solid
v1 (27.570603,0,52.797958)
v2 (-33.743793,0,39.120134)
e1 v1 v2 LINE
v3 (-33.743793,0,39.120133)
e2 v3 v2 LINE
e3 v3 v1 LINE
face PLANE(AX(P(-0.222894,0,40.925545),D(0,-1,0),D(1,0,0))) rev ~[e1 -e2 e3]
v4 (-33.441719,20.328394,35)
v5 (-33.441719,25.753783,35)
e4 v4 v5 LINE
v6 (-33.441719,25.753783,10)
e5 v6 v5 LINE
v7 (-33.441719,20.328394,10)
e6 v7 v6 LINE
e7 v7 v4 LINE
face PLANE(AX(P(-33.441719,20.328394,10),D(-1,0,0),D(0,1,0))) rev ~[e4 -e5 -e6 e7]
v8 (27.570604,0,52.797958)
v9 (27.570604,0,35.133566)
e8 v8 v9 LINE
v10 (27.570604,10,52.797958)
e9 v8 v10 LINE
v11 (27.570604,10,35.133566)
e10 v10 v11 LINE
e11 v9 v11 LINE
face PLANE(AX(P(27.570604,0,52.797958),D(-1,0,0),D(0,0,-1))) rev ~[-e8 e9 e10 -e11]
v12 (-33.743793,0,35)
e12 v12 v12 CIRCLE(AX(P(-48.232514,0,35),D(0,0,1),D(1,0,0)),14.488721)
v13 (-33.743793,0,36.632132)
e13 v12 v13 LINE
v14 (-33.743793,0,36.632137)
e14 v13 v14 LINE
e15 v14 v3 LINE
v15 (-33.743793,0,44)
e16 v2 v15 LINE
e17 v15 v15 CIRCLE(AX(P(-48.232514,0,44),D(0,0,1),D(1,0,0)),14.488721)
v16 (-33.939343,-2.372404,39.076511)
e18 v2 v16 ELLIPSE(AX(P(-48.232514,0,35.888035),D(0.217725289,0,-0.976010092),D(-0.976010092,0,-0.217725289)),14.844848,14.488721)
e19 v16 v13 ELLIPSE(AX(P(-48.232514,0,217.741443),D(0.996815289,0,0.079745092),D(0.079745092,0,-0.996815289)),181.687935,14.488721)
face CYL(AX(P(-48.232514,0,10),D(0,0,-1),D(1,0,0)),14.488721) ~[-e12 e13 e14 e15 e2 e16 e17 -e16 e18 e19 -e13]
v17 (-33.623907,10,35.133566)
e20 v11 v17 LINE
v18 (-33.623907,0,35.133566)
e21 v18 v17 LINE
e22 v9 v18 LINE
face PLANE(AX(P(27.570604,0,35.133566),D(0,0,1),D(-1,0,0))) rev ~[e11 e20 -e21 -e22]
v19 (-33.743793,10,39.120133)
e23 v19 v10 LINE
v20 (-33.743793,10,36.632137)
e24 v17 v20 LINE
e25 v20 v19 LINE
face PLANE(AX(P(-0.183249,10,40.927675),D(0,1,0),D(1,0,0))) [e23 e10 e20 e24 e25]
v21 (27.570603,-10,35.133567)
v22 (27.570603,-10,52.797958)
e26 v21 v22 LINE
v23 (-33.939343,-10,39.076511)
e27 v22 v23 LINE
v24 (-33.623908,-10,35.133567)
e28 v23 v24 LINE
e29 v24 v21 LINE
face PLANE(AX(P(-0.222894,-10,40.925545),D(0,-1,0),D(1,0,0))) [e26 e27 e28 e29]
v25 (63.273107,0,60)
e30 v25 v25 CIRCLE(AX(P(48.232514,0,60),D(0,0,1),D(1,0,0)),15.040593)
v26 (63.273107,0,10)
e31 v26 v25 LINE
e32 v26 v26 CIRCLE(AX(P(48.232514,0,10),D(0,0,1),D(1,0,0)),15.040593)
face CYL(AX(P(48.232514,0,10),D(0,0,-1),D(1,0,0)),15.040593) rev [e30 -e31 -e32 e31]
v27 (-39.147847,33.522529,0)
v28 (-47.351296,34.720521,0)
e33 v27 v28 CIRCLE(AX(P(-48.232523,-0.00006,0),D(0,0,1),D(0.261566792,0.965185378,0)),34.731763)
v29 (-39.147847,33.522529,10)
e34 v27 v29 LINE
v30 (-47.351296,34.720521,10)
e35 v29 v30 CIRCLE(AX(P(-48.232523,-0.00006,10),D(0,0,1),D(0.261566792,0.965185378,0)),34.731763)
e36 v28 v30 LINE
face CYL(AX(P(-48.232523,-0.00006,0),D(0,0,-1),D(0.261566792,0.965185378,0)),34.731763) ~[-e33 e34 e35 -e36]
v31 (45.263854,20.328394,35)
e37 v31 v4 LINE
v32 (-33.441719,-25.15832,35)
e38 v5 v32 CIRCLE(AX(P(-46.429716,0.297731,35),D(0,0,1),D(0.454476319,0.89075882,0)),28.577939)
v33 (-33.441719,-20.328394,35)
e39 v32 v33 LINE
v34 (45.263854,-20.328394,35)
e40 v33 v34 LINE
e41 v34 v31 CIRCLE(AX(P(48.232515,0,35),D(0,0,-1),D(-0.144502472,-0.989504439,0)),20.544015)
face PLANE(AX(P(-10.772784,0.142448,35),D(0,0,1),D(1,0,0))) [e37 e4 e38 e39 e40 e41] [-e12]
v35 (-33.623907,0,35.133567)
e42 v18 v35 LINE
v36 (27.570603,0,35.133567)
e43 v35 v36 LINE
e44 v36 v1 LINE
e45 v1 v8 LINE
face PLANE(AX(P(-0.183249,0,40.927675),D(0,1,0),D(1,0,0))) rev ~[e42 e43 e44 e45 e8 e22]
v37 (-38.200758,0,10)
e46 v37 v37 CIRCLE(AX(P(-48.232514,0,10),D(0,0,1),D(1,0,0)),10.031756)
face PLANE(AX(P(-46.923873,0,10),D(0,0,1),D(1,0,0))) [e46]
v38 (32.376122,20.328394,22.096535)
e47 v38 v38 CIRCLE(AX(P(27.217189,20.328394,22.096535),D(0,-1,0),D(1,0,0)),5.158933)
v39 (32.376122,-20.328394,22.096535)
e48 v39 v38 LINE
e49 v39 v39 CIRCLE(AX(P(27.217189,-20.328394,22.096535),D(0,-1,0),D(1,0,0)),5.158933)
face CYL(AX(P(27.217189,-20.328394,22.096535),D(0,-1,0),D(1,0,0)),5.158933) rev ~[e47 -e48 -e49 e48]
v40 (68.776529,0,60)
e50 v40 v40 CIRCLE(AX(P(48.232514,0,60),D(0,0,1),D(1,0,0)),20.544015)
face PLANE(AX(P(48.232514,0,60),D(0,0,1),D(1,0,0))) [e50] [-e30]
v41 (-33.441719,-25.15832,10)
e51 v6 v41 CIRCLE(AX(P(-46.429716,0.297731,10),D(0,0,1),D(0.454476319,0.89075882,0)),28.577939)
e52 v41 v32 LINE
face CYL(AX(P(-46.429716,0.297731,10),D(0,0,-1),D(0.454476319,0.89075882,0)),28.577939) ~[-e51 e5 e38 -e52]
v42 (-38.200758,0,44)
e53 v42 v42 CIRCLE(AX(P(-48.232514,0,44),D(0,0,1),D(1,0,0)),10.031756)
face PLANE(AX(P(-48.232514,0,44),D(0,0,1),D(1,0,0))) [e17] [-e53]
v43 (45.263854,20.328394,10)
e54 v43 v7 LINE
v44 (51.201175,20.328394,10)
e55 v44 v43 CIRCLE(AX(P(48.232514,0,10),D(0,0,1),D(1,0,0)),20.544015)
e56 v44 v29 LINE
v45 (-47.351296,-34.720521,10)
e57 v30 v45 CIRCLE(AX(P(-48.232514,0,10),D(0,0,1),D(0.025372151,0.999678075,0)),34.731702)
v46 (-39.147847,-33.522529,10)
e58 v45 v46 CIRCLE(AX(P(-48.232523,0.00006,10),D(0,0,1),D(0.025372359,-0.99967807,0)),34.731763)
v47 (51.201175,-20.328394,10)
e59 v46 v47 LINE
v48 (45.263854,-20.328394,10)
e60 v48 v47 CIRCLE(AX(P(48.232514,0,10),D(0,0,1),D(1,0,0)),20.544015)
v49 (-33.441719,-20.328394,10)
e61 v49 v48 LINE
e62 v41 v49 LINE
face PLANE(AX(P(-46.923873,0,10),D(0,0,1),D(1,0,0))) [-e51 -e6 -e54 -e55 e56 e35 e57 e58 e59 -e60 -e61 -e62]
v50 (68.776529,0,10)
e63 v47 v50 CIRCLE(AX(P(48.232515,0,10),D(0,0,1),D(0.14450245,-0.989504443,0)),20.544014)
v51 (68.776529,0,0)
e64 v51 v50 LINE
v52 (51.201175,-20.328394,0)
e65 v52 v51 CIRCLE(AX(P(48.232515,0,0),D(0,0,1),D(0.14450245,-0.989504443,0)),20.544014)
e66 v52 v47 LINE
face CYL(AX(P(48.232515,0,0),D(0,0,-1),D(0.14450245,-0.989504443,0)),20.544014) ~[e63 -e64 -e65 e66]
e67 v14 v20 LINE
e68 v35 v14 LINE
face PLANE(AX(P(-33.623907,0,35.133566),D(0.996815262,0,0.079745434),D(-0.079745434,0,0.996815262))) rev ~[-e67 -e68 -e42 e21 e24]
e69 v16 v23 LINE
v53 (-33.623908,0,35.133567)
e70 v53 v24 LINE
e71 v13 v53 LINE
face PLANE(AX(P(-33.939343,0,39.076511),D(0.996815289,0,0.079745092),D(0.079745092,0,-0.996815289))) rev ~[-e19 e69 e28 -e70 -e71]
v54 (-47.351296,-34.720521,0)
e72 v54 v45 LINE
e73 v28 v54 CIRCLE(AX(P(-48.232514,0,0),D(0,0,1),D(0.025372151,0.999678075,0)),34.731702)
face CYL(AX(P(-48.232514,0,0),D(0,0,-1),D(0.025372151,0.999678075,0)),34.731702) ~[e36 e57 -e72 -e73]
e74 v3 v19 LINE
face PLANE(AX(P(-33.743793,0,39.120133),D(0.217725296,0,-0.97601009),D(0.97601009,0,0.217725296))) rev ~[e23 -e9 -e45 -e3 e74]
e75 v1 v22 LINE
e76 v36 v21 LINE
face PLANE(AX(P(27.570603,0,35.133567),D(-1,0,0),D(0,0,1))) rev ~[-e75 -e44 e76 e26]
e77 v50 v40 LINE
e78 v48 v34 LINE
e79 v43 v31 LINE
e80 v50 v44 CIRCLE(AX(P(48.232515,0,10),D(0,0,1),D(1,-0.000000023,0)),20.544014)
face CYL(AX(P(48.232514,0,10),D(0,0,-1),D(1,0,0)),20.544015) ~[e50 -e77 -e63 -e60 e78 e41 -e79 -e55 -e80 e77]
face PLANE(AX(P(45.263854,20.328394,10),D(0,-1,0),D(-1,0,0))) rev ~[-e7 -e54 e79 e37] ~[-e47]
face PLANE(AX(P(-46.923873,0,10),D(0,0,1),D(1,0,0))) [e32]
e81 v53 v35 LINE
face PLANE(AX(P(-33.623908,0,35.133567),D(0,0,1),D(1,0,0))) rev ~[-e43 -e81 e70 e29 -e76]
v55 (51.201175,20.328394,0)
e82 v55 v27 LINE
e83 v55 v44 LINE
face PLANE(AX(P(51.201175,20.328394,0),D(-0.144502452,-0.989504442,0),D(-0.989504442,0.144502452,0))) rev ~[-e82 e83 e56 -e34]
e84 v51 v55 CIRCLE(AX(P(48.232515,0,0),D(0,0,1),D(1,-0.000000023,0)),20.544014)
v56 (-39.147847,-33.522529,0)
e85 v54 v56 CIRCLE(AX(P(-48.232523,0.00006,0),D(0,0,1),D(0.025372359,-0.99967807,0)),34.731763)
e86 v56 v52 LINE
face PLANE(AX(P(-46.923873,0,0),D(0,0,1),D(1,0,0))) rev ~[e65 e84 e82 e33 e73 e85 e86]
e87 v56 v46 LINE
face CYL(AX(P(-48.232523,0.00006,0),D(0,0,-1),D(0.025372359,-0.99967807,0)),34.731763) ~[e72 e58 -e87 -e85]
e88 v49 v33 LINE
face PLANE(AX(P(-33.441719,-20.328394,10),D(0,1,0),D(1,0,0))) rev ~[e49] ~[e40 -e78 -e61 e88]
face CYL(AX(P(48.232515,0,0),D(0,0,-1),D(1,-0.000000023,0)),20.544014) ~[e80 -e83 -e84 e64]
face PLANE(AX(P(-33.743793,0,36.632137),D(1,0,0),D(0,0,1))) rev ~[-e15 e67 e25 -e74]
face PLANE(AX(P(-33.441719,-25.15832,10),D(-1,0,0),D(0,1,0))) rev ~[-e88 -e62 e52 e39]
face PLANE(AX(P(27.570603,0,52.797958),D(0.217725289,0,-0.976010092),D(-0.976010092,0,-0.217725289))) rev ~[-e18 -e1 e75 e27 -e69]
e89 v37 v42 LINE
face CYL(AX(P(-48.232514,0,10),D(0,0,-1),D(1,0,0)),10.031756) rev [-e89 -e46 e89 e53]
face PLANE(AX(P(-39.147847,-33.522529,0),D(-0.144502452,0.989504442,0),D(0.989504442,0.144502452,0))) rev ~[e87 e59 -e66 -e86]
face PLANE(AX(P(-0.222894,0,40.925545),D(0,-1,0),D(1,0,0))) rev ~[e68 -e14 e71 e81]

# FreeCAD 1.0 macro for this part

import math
import FreeCAD as App
import Part
import Sketcher

V = App.Vector


def add_polygon(sketch, points):
    """Adds a closed chain of lines whose ends are joined by coincident constraints."""
    first, n = sketch.GeometryCount, len(points)
    for a, b in zip(points, points[1:] + points[:1]):
        sketch.addGeometry(Part.LineSegment(App.Vector(*a, 0), App.Vector(*b, 0)), False)
    for i in range(n):
        sketch.addConstraint(Sketcher.Constraint("Coincident", first + i, 2, first + (i + 1) % n, 1))

doc = App.newDocument("Part")
body = doc.addObject("PartDesign::Body", "Body")

# Sketch on XY plane
sketch1 = body.newObject("Sketcher::SketchObject", "Sketch")
sketch1.AttachmentSupport = (doc.getObject("XY_Plane"), [""])
sketch1.MapMode = "FlatFace"
sketch1.addGeometry([
    Part.ArcOfCircle(Part.Circle(V(-48.232514, 0, 0), V(0, 0, 1), 34.731702), math.radians(88.546127), math.radians(271.453873)),  # 0
    Part.ArcOfCircle(Part.Circle(V(-48.232523, 0.00006, 0), V(0, 0, 1), 34.731763), math.radians(-88.546115), math.radians(-74.83695)),  # 1
    Part.LineSegment(V(-39.147847, -33.522529, 0), V(51.201175, -20.328394, 0)),  # 2
    Part.ArcOfCircle(Part.Circle(V(48.232515, 0, 0), V(0, 0, 1), 20.544014), math.radians(-81.691532), math.radians(0.000001)),  # 3
    Part.ArcOfCircle(Part.Circle(V(48.232515, 0, 0), V(0, 0, 1), 20.544014), math.radians(-0.000001), math.radians(81.691532)),  # 4
    Part.LineSegment(V(51.201175, 20.328394, 0), V(-39.147847, 33.522529, 0)),  # 5
    Part.ArcOfCircle(Part.Circle(V(-48.232523, -0.00006, 0), V(0, 0, 1), 34.731763), math.radians(74.83695), math.radians(88.546115)),  # 6
], False)
sketch1.addConstraint([
    Sketcher.Constraint("Tangent", 0, 2, 1, 1),
    Sketcher.Constraint("Coincident", 1, 2, 2, 1),
    Sketcher.Constraint("Tangent", 2, 2, 3, 1),
    Sketcher.Constraint("Tangent", 3, 2, 4, 1),
    Sketcher.Constraint("Tangent", 4, 2, 5, 1),
    Sketcher.Constraint("Coincident", 5, 2, 6, 1),
    Sketcher.Constraint("Tangent", 6, 2, 0, 1),
    Sketcher.Constraint("Equal", 3, 4),
    Sketcher.Constraint("Equal", 1, 6),
    Sketcher.Constraint("Symmetric", 0, 3, 3, 3, -1, 1),
    Sketcher.Constraint("Symmetric", 2, 2, 4, 2, -1),
    Sketcher.Constraint("PointOnObject", 3, 2, -1),
    Sketcher.Constraint("Vertical", 0, 2, 6, 2),
    Sketcher.Constraint("Radius", 0, 34.731702),
    Sketcher.Constraint("Radius", 1, 34.731763),
    Sketcher.Constraint("Radius", 3, 20.544014),
    Sketcher.Constraint("DistanceY", 0, 2, -1, 1, 34.720521),
    Sketcher.Constraint("DistanceY", 1, 2, -1, 1, 33.522529),
    Sketcher.Constraint("DistanceX", -1, 1, 3, 2, 68.776529),
])
pad1 = body.newObject("PartDesign::Pad", "Pad")
pad1.Profile = sketch1
pad1.Length = 10

# Sketch on XY plane
sketch2 = body.newObject("Sketcher::SketchObject", "Sketch001")
sketch2.AttachmentSupport = (doc.getObject("XY_Plane"), [""])
sketch2.MapMode = "FlatFace"
sketch2.AttachmentOffset = App.Placement(V(0, 0, 10), App.Rotation())
sketch2.addGeometry([
    Part.Circle(V(48.232514, 0, 0), V(0, 0, 1), 20.544015),
    Part.Circle(V(48.232514, 0, 0), V(0, 0, 1), 15.040593),
], False)
sketch2.addConstraint([
    Sketcher.Constraint("Coincident", 1, 3, 0, 3),
    Sketcher.Constraint("PointOnObject", 0, 3, -1),
    Sketcher.Constraint("Diameter", 0, 41.08803),
    Sketcher.Constraint("Diameter", 1, 30.081186),
    Sketcher.Constraint("DistanceX", -1, 1, 0, 3, 48.232514),
])
pad2 = body.newObject("PartDesign::Pad", "Pad001")
pad2.Profile = sketch2
pad2.Length = 50

# Sketch on XY plane
sketch3 = body.newObject("Sketcher::SketchObject", "Sketch002")
sketch3.AttachmentSupport = (doc.getObject("XY_Plane"), [""])
sketch3.MapMode = "FlatFace"
sketch3.AttachmentOffset = App.Placement(V(0, 0, 10), App.Rotation())
sketch3.addGeometry([
    Part.Circle(V(-48.232514, 0, 0), V(0, 0, 1), 14.488721),
    Part.Circle(V(-48.232514, 0, 0), V(0, 0, 1), 10.031756),
], False)
sketch3.addConstraint([
    Sketcher.Constraint("Coincident", 1, 3, 0, 3),
    Sketcher.Constraint("PointOnObject", 0, 3, -1),
    Sketcher.Constraint("Diameter", 0, 28.977442),
    Sketcher.Constraint("Diameter", 1, 20.063512),
    Sketcher.Constraint("DistanceX", 0, 3, -1, 1, 48.232514),
])
pad3 = body.newObject("PartDesign::Pad", "Pad002")
pad3.Profile = sketch3
pad3.Length = 34

# Sketch on XY plane
sketch4 = body.newObject("Sketcher::SketchObject", "Sketch003")
sketch4.AttachmentSupport = (doc.getObject("XY_Plane"), [""])
sketch4.MapMode = "FlatFace"
sketch4.AttachmentOffset = App.Placement(V(0, 0, 10), App.Rotation())
sketch4.addGeometry([
    Part.ArcOfCircle(Part.Circle(V(48.232515, 0, 0), V(0, 0, 1), 20.544015), math.radians(98.30847), math.radians(261.69153)),  # 0
    Part.LineSegment(V(45.263854, 20.328394, 0), V(-33.441719, 20.328394, 0)),  # 1
    Part.LineSegment(V(-33.441719, 20.328394, 0), V(-33.441719, 25.753783, 0)),  # 2
    Part.ArcOfCircle(Part.Circle(V(-46.429716, 0.297731, 0), V(0, 0, 1), 28.577939), math.radians(62.968755), math.radians(297.031245)),  # 3
    Part.LineSegment(V(-33.441719, -25.15832, 0), V(-33.441719, -20.328394, 0)),  # 4
    Part.LineSegment(V(-33.441719, -20.328394, 0), V(45.263854, -20.328394, 0)),  # 5
    Part.Circle(V(-48.232514, 0, 0), V(0, 0, 1), 14.488721),  # 6
], False)
sketch4.addConstraint([
    Sketcher.Constraint("Coincident", 0, 1, 1, 1),
    Sketcher.Constraint("Coincident", 1, 2, 2, 1),
    Sketcher.Constraint("Coincident", 2, 2, 3, 1),
    Sketcher.Constraint("Coincident", 3, 2, 4, 1),
    Sketcher.Constraint("Coincident", 4, 2, 5, 1),
    Sketcher.Constraint("Coincident", 5, 2, 0, 2),
    Sketcher.Constraint("Horizontal", 1),
    Sketcher.Constraint("Vertical", 2),
    Sketcher.Constraint("Vertical", 4),
    Sketcher.Constraint("Horizontal", 5),
    Sketcher.Constraint("Symmetric", 0, 3, 6, 3, -1, 1),
    Sketcher.Constraint("Symmetric", 1, 2, 4, 2, -1),
    Sketcher.Constraint("PointOnObject", 0, 3, -1),
    Sketcher.Constraint("Diameter", 6, 28.977442),
    Sketcher.Constraint("Radius", 3, 28.577939),
    Sketcher.Constraint("Radius", 0, 20.544015),
    Sketcher.Constraint("DistanceY", 2, 1, 2, 2, 5.425389),
    Sketcher.Constraint("DistanceX", 6, 3, 3, 3, 1.802798),
    Sketcher.Constraint("DistanceX", 1, 2, 1, 1, 78.705573),
    Sketcher.Constraint("DistanceY", 4, 1, 4, 2, 4.829926),
    Sketcher.Constraint("DistanceX", 1, 2, -1, 1, 33.441719),
])
pad4 = body.newObject("PartDesign::Pad", "Pad003")
pad4.Profile = sketch4
pad4.Length = 25

# Sketch on XZ plane
sketch5 = body.newObject("Sketcher::SketchObject", "Sketch004")
sketch5.AttachmentSupport = (doc.getObject("XZ_Plane"), [""])
sketch5.MapMode = "FlatFace"
add_polygon(sketch5, [(-33.939343, 39.076511), (-33.623908, 35.133567), (27.570603, 35.133567), (27.570603, 52.797958)])  # lines 0-3
sketch5.addConstraint([
    Sketcher.Constraint("Horizontal", 1),
    Sketcher.Constraint("Vertical", 2),
    Sketcher.Constraint("DistanceX", 1, 1, 1, 2, 61.194511),
    Sketcher.Constraint("DistanceY", 2, 1, 2, 2, 17.664391),
    Sketcher.Constraint("Distance", 0, 3.955541),
    Sketcher.Constraint("DistanceY", -1, 1, 3, 2, 39.076511),
    Sketcher.Constraint("Distance", 3, 63.021834),
    Sketcher.Constraint("DistanceX", 0, 2, -1, 1, 33.623908),
])
pad5 = body.newObject("PartDesign::Pad", "Pad004")
pad5.Profile = sketch5
pad5.Length = 10

# Sketch on XZ plane
sketch6 = body.newObject("Sketcher::SketchObject", "Sketch005")
sketch6.AttachmentSupport = (doc.getObject("XZ_Plane"), [""])
sketch6.MapMode = "FlatFace"
add_polygon(sketch6, [(-33.743793, 36.632137), (-33.743793, 39.120133), (27.570604, 52.797958), (27.570604, 35.133566), (-33.623907, 35.133566)])  # lines 0-4
sketch6.addConstraint([
    Sketcher.Constraint("Vertical", 0),
    Sketcher.Constraint("Vertical", 2),
    Sketcher.Constraint("Horizontal", 3),
    Sketcher.Constraint("DistanceX", 3, 2, 3, 1, 61.194511),
    Sketcher.Constraint("DistanceY", 2, 2, 2, 1, 17.664392),
    Sketcher.Constraint("Distance", 1, 62.821479),
    Sketcher.Constraint("Distance", 4, 1.503359),
    Sketcher.Constraint("DistanceY", 0, 1, 0, 2, 2.487996),
    Sketcher.Constraint("DistanceX", 0, 2, -1, 1, 33.743793),
    Sketcher.Constraint("DistanceY", -1, 1, 0, 2, 39.120133),
])
pad6 = body.newObject("PartDesign::Pad", "Pad005")
pad6.Profile = sketch6
pad6.Length = 10
pad6.Reversed = True

# Sketch on XZ plane
sketch7 = body.newObject("Sketcher::SketchObject", "Sketch006")
sketch7.AttachmentSupport = (doc.getObject("XZ_Plane"), [""])
sketch7.MapMode = "FlatFace"
sketch7.AttachmentOffset = App.Placement(V(0, 0, 20.328394), App.Rotation())
sketch7.addGeometry(Part.Circle(V(27.217189, 22.096535, 0), V(0, 0, 1), 5.158933), False)
sketch7.addConstraint([
    Sketcher.Constraint("Diameter", 0, 10.317866),
    Sketcher.Constraint("DistanceX", -1, 1, 0, 3, 27.217189),
    Sketcher.Constraint("DistanceY", -1, 1, 0, 3, 22.096535),
])
pocket1 = body.newObject("PartDesign::Pocket", "Pocket")
pocket1.Profile = sketch7
pocket1.Length = 111

doc.recompute()
